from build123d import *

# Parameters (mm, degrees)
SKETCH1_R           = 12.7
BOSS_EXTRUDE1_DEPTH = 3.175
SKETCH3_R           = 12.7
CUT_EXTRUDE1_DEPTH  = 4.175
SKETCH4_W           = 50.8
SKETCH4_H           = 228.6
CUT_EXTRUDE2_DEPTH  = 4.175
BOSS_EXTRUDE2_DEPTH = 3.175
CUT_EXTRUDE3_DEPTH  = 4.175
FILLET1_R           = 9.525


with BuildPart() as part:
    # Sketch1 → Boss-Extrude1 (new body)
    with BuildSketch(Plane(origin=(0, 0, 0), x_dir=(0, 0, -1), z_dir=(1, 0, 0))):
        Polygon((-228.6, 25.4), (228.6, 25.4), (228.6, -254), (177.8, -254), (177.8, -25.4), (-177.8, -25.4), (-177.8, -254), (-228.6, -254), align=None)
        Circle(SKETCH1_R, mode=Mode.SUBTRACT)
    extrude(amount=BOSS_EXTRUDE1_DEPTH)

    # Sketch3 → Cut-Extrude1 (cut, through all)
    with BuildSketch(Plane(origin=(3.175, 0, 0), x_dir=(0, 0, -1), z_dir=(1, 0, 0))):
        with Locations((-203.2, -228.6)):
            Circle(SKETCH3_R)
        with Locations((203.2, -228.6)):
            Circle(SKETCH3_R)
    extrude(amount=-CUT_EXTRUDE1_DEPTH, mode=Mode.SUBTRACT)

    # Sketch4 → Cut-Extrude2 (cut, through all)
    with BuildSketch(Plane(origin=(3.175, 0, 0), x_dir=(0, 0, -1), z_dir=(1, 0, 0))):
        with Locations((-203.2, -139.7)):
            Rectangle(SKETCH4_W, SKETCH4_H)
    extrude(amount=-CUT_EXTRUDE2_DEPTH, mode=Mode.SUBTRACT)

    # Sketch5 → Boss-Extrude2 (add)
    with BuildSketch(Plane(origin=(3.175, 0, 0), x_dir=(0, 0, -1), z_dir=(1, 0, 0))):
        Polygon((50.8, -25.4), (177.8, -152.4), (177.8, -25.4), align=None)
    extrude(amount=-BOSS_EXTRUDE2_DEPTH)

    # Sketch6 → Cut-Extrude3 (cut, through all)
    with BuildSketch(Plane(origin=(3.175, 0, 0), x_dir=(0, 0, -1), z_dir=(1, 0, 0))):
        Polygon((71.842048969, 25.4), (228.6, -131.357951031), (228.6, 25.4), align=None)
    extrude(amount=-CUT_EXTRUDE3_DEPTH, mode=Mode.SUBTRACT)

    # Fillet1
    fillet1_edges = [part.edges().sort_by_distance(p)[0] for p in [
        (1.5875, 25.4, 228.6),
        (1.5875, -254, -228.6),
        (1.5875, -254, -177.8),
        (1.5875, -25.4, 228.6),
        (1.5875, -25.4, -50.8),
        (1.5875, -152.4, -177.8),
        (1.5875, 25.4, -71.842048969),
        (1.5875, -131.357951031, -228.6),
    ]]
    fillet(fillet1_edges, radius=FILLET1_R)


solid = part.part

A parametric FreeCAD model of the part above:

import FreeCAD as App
import Part
import Sketcher

V = App.Vector
Q = App.Units.Quantity


def edges_at(feature, points):
    """Names of the edges that pass closest to the given points."""
    edges = feature.Shape.Edges
    near = lambda p: min(range(len(edges)), key=lambda i: edges[i].distToShape(Part.Vertex(*p))[0])
    return sorted({f"Edge{near(p) + 1}" for p in points})

doc = App.newDocument("Part")
body = doc.addObject("PartDesign::Body", "Body")

# Sketch on YZ plane
sketch1 = body.newObject("Sketcher::SketchObject", "Sketch")
sketch1.AttachmentSupport = (doc.getObject("YZ_Plane"), [""])
sketch1.MapMode = "FlatFace"
sketch1.addGeometry([
    Part.LineSegment(V(25.4, -228.6, 0), V(25.4, 228.6, 0)),  # 0
    Part.LineSegment(V(25.4, 228.6, 0), V(-254, 228.6, 0)),  # 1
    Part.LineSegment(V(-254, 228.6, 0), V(-254, 177.8, 0)),  # 2
    Part.LineSegment(V(-254, 177.8, 0), V(-25.4, 177.8, 0)),  # 3
    Part.LineSegment(V(-25.4, 177.8, 0), V(-25.4, -177.8, 0)),  # 4
    Part.LineSegment(V(-25.4, -177.8, 0), V(-254, -177.8, 0)),  # 5
    Part.LineSegment(V(-254, -177.8, 0), V(-254, -228.6, 0)),  # 6
    Part.LineSegment(V(-254, -228.6, 0), V(25.4, -228.6, 0)),  # 7
    Part.Circle(V(0, 0, 0), V(0, 0, 1), 12.7),  # 8
], False)
sketch1.addConstraint([
    Sketcher.Constraint("Coincident", 0, 2, 1, 1),
    Sketcher.Constraint("Coincident", 1, 2, 2, 1),
    Sketcher.Constraint("Coincident", 2, 2, 3, 1),
    Sketcher.Constraint("Coincident", 3, 2, 4, 1),
    Sketcher.Constraint("Coincident", 4, 2, 5, 1),
    Sketcher.Constraint("Coincident", 5, 2, 6, 1),
    Sketcher.Constraint("Coincident", 6, 2, 7, 1),
    Sketcher.Constraint("Coincident", 7, 2, 0, 1),
    Sketcher.Constraint("Vertical", 0),
    Sketcher.Constraint("Horizontal", 1),
    Sketcher.Constraint("Vertical", 2),
    Sketcher.Constraint("Horizontal", 3),
    Sketcher.Constraint("Vertical", 4),
    Sketcher.Constraint("Horizontal", 5),
    Sketcher.Constraint("Vertical", 6),
    Sketcher.Constraint("Horizontal", 7),
    Sketcher.Constraint("Coincident", 8, 3, -1, 1),
    Sketcher.Constraint("Symmetric", 2, 2, 5, 2, -1),
    Sketcher.Constraint("Equal", 2, 6),
    Sketcher.Constraint("Diameter", 8, Q("1 in")),
    Sketcher.Constraint("DistanceX", 1, 2, 1, 1, Q("11 in")),
    Sketcher.Constraint("DistanceX", 3, 1, 3, 2, Q("9 in")),
    Sketcher.Constraint("DistanceY", 0, 1, 0, 2, Q("18 in")),
    Sketcher.Constraint("DistanceY", 2, 2, 2, 1, Q("2 in")),
    Sketcher.Constraint("DistanceX", -1, 1, 0, 2, Q("1 in")),
])
pad1 = body.newObject("PartDesign::Pad", "Pad")
pad1.Profile = sketch1
pad1.Length = Q("0.125 in")

# Sketch on YZ plane
sketch2 = body.newObject("Sketcher::SketchObject", "Sketch001")
sketch2.AttachmentSupport = (doc.getObject("YZ_Plane"), [""])
sketch2.MapMode = "FlatFace"
sketch2.AttachmentOffset = App.Placement(V(0, 0, 0.125 * 25.4), App.Rotation())
sketch2.addGeometry([
    Part.Circle(V(-228.6, 203.2, 0), V(0, 0, 1), 12.7),
    Part.Circle(V(-228.6, -203.2, 0), V(0, 0, 1), 12.7),
], False)
sketch2.addConstraint([
    Sketcher.Constraint("Equal", 0, 1),
    Sketcher.Constraint("Symmetric", 0, 3, 1, 3, -1),
    Sketcher.Constraint("Diameter", 0, Q("1 in")),
    Sketcher.Constraint("DistanceX", 0, 3, -1, 1, Q("9 in")),
    Sketcher.Constraint("DistanceY", -1, 1, 0, 3, Q("8 in")),
])
pocket1 = body.newObject("PartDesign::Pocket", "Pocket")
pocket1.Profile = sketch2
pocket1.Type = "ThroughAll"

# Sketch on YZ plane
sketch3 = body.newObject("Sketcher::SketchObject", "Sketch002")
sketch3.AttachmentSupport = (doc.getObject("YZ_Plane"), [""])
sketch3.MapMode = "FlatFace"
sketch3.AttachmentOffset = App.Placement(V(0, 0, 0.125 * 25.4), App.Rotation())
sketch3.addGeometry([
    Part.LineSegment(V(-25.4, 228.6, 0), V(-254, 228.6, 0)),
    Part.LineSegment(V(-254, 228.6, 0), V(-254, 177.8, 0)),
    Part.LineSegment(V(-254, 177.8, 0), V(-25.4, 177.8, 0)),
    Part.LineSegment(V(-25.4, 177.8, 0), V(-25.4, 228.6, 0)),
], False)
sketch3.addConstraint([
    Sketcher.Constraint("Coincident", 0, 2, 1, 1),
    Sketcher.Constraint("Coincident", 1, 2, 2, 1),
    Sketcher.Constraint("Coincident", 2, 2, 3, 1),
    Sketcher.Constraint("Coincident", 3, 2, 0, 1),
    Sketcher.Constraint("Horizontal", 0),
    Sketcher.Constraint("Vertical", 1),
    Sketcher.Constraint("Horizontal", 2),
    Sketcher.Constraint("Vertical", 3),
    Sketcher.Constraint("DistanceX", 0, 2, 0, 1, Q("9 in")),
    Sketcher.Constraint("DistanceY", 1, 2, 1, 1, Q("2 in")),
    Sketcher.Constraint("DistanceX", 0, 2, -1, 1, Q("10 in")),
    Sketcher.Constraint("DistanceY", -1, 1, 0, 2, Q("9 in")),
])
pocket2 = body.newObject("PartDesign::Pocket", "Pocket001")
pocket2.Profile = sketch3
pocket2.Type = "ThroughAll"

# Sketch on YZ plane
sketch4 = body.newObject("Sketcher::SketchObject", "Sketch003")
sketch4.AttachmentSupport = (doc.getObject("YZ_Plane"), [""])
sketch4.MapMode = "FlatFace"
sketch4.AttachmentOffset = App.Placement(V(0, 0, 0.125 * 25.4), App.Rotation())
sketch4.addGeometry([
    Part.LineSegment(V(-25.4, -50.8, 0), V(-152.4, -177.8, 0)),
    Part.LineSegment(V(-152.4, -177.8, 0), V(-25.4, -177.8, 0)),
    Part.LineSegment(V(-25.4, -177.8, 0), V(-25.4, -50.8, 0)),
], False)
sketch4.addConstraint([
    Sketcher.Constraint("Coincident", 0, 2, 1, 1),
    Sketcher.Constraint("Coincident", 1, 2, 2, 1),
    Sketcher.Constraint("Coincident", 2, 2, 0, 1),
    Sketcher.Constraint("Horizontal", 1),
    Sketcher.Constraint("Vertical", 2),
    Sketcher.Constraint("Equal", 1, 2),
    Sketcher.Constraint("DistanceX", 1, 1, 1, 2, Q("5 in")),
    Sketcher.Constraint("DistanceX", 0, 2, -1, 1, Q("6 in")),
    Sketcher.Constraint("DistanceY", 0, 2, -1, 1, Q("7 in")),
])
pad2 = body.newObject("PartDesign::Pad", "Pad001")
pad2.Profile = sketch4
pad2.Length = Q("0.125 in")
pad2.Reversed = True

# Sketch on YZ plane
sketch5 = body.newObject("Sketcher::SketchObject", "Sketch004")
sketch5.AttachmentSupport = (doc.getObject("YZ_Plane"), [""])
sketch5.MapMode = "FlatFace"
sketch5.AttachmentOffset = App.Placement(V(0, 0, 0.125 * 25.4), App.Rotation())
sketch5.addGeometry([
    Part.LineSegment(V(25.4, -71.842049, 0), V(-131.357951, -228.6, 0)),
    Part.LineSegment(V(-131.357951, -228.6, 0), V(25.4, -228.6, 0)),
    Part.LineSegment(V(25.4, -228.6, 0), V(25.4, -71.842049, 0)),
], False)
sketch5.addConstraint([
    Sketcher.Constraint("Coincident", 0, 2, 1, 1),
    Sketcher.Constraint("Coincident", 1, 2, 2, 1),
    Sketcher.Constraint("Coincident", 2, 2, 0, 1),
    Sketcher.Constraint("Horizontal", 1),
    Sketcher.Constraint("Vertical", 2),
    Sketcher.Constraint("Equal", 1, 2),
    Sketcher.Constraint("DistanceY", 0, 2, -1, 1, Q("9 in")),
    Sketcher.Constraint("DistanceX", -1, 1, 1, 2, Q("1 in")),
    Sketcher.Constraint("DistanceX", 1, 1, 1, 2, 156.757951),
])
pocket3 = body.newObject("PartDesign::Pocket", "Pocket002")
pocket3.Profile = sketch5
pocket3.Type = "ThroughAll"
doc.recompute()

fillet = body.newObject("PartDesign::Fillet", "Fillet")
fillet.Base = (pocket3, edges_at(pocket3, [
    (1.587, 25.4, 228.6),
    (1.587, -254, -228.6),
    (1.587, -254, -177.8),
    (1.587, -25.4, 228.6),
    (1.587, -25.4, -50.8),
    (1.587, -152.4, -177.8),
    (1.587, 25.4, -71.842),
    (1.587, -131.358, -228.6),
]))
fillet.Radius = Q("0.375 in")

doc.recompute()
